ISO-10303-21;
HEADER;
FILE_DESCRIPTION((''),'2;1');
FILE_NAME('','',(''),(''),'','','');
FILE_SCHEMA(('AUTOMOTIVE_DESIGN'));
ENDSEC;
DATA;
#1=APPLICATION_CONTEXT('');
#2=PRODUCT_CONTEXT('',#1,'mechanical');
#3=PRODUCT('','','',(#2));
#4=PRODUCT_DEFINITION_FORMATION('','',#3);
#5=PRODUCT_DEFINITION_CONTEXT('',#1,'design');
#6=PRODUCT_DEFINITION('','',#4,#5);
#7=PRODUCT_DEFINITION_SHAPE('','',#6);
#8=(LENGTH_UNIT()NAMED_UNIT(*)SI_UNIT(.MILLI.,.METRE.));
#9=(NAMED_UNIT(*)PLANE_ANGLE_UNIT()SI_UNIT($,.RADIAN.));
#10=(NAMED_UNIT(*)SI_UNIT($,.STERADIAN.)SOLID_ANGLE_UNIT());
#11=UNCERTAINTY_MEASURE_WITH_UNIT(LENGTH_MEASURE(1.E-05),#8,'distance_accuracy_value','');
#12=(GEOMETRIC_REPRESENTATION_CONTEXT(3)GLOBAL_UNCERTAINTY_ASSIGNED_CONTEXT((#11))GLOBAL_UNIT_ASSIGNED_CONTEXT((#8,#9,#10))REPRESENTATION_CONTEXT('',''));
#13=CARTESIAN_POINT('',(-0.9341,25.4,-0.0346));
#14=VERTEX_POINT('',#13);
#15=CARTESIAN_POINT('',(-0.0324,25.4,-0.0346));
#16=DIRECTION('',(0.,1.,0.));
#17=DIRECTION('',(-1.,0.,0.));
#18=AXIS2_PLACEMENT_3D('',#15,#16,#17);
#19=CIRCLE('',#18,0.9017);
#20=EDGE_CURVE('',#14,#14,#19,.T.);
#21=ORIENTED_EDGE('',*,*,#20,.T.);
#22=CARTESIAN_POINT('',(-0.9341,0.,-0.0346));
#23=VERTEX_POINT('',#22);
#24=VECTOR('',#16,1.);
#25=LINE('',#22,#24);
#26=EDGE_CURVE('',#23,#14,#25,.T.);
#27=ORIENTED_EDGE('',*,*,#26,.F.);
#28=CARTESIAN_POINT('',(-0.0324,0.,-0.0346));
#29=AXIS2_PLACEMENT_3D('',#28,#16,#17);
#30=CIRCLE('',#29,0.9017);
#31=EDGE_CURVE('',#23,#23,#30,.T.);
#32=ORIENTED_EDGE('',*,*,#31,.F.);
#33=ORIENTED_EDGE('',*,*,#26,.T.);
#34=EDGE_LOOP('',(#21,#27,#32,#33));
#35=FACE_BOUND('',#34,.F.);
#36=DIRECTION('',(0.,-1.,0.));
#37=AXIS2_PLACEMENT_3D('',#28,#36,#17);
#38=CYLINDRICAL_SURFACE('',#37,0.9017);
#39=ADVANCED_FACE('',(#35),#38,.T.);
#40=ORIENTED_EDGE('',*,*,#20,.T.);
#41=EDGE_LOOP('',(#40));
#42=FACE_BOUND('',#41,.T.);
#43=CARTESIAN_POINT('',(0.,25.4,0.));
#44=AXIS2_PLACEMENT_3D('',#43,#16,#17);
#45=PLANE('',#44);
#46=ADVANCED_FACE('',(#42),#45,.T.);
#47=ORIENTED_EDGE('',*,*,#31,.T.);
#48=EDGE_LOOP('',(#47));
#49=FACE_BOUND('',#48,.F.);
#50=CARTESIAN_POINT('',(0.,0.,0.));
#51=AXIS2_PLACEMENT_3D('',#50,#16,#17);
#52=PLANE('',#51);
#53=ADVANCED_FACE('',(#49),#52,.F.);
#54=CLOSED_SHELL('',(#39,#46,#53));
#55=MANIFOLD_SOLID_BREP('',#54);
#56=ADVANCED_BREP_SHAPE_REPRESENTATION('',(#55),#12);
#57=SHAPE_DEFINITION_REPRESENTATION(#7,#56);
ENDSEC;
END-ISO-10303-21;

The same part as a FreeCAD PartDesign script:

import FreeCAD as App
import Part
import Sketcher
Q = App.Units.Quantity

doc = App.newDocument("Part")
params = doc.addObject("Spreadsheet::Sheet", "Params")
for row, (alias, value) in enumerate([
    ("sketch1_diameter", "0.071 in"),
    ("pad1_length", "1 in"),
], start=1):
    params.set(f"A{row}", alias)
    params.set(f"B{row}", "=" + value)
    params.setAlias(f"B{row}", alias)

body = doc.addObject("PartDesign::Body", "Body")

# Sketch on XZ plane
sketch1 = body.newObject("Sketcher::SketchObject", "Sketch")
sketch1.AttachmentSupport = (doc.getObject("XZ_Plane"), [""])
sketch1.MapMode = "FlatFace"
sketch1.addGeometry(Part.Circle(App.Vector(0, 0, 0), App.Vector(0, 0, 1), 0.9), False)
sketch1.addConstraint([
    Sketcher.Constraint("Diameter", 0, Q("0.071 in")),
    Sketcher.Constraint("DistanceX", 0, 3, -1, 1, 0.0324),
    Sketcher.Constraint("DistanceY", 0, 3, -1, 1, 0.0346),
])
sketch1.setExpression("Constraints[0]", "Params.sketch1_diameter")
pad1 = body.newObject("PartDesign::Pad", "Pad")
pad1.Profile = sketch1
pad1.setExpression("Length", "Params.pad1_length")
pad1.Reversed = True

doc.recompute()
